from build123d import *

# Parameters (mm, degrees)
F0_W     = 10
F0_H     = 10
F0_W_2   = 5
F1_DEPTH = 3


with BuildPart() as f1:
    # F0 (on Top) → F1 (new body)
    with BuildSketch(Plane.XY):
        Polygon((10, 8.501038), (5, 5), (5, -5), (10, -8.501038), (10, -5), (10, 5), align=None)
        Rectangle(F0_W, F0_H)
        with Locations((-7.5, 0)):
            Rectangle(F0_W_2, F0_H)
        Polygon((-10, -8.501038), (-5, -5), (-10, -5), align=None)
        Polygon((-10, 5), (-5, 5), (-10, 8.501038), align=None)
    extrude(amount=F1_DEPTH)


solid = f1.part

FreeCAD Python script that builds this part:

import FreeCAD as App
import Part
import Sketcher

V = App.Vector
Q = App.Units.Quantity


def add_polygon(sketch, points):
    """Adds a closed chain of lines whose ends are joined by coincident constraints."""
    first, n = sketch.GeometryCount, len(points)
    for a, b in zip(points, points[1:] + points[:1]):
        sketch.addGeometry(Part.LineSegment(App.Vector(*a, 0), App.Vector(*b, 0)), False)
    for i in range(n):
        sketch.addConstraint(Sketcher.Constraint("Coincident", first + i, 2, first + (i + 1) % n, 1))

doc = App.newDocument("Part")
body = doc.addObject("PartDesign::Body", "Body")

sketch1 = body.newObject("Sketcher::SketchObject", "Sketch")
sketch1.AttachmentSupport = (doc.getObject("XY_Plane"), [""])
sketch1.MapMode = "FlatFace"
add_polygon(sketch1, [(10, 9), (5, 5), (-5, 5), (-10, 9), (-10, -9), (-5, -5), (5, -5), (10, -9)])
sketch1.addConstraint([
    Sketcher.Constraint("Horizontal", 1),
    Sketcher.Constraint("Vertical", 3),
    Sketcher.Constraint("Horizontal", 5),
    Sketcher.Constraint("Vertical", 7),
    Sketcher.Constraint("Symmetric", 0, 2, 4, 2, -1, 1),
    Sketcher.Constraint("Symmetric", 2, 2, 6, 2, -1, 1),
    Sketcher.Constraint("Parallel", 0, 4),
    Sketcher.Constraint("Parallel", 2, 6),
    Sketcher.Constraint("Horizontal", 3, 2, 6, 2),
    Sketcher.Constraint("Vertical", 1, 2, 4, 2),
    Sketcher.Constraint("DistanceX", 1, 2, 1, 1, 10.0),
    Sketcher.Constraint("Angle", 0, Q("-144.999998 deg")),
    Sketcher.Constraint("DistanceY", -1, 1, 0, 2, 5.0),
    Sketcher.Constraint("DistanceX", 2, 2, -1, 1, 10.0),
])
pad1 = body.newObject("PartDesign::Pad", "Pad")
pad1.Profile = sketch1
pad1.Length = 3

doc.recompute()
